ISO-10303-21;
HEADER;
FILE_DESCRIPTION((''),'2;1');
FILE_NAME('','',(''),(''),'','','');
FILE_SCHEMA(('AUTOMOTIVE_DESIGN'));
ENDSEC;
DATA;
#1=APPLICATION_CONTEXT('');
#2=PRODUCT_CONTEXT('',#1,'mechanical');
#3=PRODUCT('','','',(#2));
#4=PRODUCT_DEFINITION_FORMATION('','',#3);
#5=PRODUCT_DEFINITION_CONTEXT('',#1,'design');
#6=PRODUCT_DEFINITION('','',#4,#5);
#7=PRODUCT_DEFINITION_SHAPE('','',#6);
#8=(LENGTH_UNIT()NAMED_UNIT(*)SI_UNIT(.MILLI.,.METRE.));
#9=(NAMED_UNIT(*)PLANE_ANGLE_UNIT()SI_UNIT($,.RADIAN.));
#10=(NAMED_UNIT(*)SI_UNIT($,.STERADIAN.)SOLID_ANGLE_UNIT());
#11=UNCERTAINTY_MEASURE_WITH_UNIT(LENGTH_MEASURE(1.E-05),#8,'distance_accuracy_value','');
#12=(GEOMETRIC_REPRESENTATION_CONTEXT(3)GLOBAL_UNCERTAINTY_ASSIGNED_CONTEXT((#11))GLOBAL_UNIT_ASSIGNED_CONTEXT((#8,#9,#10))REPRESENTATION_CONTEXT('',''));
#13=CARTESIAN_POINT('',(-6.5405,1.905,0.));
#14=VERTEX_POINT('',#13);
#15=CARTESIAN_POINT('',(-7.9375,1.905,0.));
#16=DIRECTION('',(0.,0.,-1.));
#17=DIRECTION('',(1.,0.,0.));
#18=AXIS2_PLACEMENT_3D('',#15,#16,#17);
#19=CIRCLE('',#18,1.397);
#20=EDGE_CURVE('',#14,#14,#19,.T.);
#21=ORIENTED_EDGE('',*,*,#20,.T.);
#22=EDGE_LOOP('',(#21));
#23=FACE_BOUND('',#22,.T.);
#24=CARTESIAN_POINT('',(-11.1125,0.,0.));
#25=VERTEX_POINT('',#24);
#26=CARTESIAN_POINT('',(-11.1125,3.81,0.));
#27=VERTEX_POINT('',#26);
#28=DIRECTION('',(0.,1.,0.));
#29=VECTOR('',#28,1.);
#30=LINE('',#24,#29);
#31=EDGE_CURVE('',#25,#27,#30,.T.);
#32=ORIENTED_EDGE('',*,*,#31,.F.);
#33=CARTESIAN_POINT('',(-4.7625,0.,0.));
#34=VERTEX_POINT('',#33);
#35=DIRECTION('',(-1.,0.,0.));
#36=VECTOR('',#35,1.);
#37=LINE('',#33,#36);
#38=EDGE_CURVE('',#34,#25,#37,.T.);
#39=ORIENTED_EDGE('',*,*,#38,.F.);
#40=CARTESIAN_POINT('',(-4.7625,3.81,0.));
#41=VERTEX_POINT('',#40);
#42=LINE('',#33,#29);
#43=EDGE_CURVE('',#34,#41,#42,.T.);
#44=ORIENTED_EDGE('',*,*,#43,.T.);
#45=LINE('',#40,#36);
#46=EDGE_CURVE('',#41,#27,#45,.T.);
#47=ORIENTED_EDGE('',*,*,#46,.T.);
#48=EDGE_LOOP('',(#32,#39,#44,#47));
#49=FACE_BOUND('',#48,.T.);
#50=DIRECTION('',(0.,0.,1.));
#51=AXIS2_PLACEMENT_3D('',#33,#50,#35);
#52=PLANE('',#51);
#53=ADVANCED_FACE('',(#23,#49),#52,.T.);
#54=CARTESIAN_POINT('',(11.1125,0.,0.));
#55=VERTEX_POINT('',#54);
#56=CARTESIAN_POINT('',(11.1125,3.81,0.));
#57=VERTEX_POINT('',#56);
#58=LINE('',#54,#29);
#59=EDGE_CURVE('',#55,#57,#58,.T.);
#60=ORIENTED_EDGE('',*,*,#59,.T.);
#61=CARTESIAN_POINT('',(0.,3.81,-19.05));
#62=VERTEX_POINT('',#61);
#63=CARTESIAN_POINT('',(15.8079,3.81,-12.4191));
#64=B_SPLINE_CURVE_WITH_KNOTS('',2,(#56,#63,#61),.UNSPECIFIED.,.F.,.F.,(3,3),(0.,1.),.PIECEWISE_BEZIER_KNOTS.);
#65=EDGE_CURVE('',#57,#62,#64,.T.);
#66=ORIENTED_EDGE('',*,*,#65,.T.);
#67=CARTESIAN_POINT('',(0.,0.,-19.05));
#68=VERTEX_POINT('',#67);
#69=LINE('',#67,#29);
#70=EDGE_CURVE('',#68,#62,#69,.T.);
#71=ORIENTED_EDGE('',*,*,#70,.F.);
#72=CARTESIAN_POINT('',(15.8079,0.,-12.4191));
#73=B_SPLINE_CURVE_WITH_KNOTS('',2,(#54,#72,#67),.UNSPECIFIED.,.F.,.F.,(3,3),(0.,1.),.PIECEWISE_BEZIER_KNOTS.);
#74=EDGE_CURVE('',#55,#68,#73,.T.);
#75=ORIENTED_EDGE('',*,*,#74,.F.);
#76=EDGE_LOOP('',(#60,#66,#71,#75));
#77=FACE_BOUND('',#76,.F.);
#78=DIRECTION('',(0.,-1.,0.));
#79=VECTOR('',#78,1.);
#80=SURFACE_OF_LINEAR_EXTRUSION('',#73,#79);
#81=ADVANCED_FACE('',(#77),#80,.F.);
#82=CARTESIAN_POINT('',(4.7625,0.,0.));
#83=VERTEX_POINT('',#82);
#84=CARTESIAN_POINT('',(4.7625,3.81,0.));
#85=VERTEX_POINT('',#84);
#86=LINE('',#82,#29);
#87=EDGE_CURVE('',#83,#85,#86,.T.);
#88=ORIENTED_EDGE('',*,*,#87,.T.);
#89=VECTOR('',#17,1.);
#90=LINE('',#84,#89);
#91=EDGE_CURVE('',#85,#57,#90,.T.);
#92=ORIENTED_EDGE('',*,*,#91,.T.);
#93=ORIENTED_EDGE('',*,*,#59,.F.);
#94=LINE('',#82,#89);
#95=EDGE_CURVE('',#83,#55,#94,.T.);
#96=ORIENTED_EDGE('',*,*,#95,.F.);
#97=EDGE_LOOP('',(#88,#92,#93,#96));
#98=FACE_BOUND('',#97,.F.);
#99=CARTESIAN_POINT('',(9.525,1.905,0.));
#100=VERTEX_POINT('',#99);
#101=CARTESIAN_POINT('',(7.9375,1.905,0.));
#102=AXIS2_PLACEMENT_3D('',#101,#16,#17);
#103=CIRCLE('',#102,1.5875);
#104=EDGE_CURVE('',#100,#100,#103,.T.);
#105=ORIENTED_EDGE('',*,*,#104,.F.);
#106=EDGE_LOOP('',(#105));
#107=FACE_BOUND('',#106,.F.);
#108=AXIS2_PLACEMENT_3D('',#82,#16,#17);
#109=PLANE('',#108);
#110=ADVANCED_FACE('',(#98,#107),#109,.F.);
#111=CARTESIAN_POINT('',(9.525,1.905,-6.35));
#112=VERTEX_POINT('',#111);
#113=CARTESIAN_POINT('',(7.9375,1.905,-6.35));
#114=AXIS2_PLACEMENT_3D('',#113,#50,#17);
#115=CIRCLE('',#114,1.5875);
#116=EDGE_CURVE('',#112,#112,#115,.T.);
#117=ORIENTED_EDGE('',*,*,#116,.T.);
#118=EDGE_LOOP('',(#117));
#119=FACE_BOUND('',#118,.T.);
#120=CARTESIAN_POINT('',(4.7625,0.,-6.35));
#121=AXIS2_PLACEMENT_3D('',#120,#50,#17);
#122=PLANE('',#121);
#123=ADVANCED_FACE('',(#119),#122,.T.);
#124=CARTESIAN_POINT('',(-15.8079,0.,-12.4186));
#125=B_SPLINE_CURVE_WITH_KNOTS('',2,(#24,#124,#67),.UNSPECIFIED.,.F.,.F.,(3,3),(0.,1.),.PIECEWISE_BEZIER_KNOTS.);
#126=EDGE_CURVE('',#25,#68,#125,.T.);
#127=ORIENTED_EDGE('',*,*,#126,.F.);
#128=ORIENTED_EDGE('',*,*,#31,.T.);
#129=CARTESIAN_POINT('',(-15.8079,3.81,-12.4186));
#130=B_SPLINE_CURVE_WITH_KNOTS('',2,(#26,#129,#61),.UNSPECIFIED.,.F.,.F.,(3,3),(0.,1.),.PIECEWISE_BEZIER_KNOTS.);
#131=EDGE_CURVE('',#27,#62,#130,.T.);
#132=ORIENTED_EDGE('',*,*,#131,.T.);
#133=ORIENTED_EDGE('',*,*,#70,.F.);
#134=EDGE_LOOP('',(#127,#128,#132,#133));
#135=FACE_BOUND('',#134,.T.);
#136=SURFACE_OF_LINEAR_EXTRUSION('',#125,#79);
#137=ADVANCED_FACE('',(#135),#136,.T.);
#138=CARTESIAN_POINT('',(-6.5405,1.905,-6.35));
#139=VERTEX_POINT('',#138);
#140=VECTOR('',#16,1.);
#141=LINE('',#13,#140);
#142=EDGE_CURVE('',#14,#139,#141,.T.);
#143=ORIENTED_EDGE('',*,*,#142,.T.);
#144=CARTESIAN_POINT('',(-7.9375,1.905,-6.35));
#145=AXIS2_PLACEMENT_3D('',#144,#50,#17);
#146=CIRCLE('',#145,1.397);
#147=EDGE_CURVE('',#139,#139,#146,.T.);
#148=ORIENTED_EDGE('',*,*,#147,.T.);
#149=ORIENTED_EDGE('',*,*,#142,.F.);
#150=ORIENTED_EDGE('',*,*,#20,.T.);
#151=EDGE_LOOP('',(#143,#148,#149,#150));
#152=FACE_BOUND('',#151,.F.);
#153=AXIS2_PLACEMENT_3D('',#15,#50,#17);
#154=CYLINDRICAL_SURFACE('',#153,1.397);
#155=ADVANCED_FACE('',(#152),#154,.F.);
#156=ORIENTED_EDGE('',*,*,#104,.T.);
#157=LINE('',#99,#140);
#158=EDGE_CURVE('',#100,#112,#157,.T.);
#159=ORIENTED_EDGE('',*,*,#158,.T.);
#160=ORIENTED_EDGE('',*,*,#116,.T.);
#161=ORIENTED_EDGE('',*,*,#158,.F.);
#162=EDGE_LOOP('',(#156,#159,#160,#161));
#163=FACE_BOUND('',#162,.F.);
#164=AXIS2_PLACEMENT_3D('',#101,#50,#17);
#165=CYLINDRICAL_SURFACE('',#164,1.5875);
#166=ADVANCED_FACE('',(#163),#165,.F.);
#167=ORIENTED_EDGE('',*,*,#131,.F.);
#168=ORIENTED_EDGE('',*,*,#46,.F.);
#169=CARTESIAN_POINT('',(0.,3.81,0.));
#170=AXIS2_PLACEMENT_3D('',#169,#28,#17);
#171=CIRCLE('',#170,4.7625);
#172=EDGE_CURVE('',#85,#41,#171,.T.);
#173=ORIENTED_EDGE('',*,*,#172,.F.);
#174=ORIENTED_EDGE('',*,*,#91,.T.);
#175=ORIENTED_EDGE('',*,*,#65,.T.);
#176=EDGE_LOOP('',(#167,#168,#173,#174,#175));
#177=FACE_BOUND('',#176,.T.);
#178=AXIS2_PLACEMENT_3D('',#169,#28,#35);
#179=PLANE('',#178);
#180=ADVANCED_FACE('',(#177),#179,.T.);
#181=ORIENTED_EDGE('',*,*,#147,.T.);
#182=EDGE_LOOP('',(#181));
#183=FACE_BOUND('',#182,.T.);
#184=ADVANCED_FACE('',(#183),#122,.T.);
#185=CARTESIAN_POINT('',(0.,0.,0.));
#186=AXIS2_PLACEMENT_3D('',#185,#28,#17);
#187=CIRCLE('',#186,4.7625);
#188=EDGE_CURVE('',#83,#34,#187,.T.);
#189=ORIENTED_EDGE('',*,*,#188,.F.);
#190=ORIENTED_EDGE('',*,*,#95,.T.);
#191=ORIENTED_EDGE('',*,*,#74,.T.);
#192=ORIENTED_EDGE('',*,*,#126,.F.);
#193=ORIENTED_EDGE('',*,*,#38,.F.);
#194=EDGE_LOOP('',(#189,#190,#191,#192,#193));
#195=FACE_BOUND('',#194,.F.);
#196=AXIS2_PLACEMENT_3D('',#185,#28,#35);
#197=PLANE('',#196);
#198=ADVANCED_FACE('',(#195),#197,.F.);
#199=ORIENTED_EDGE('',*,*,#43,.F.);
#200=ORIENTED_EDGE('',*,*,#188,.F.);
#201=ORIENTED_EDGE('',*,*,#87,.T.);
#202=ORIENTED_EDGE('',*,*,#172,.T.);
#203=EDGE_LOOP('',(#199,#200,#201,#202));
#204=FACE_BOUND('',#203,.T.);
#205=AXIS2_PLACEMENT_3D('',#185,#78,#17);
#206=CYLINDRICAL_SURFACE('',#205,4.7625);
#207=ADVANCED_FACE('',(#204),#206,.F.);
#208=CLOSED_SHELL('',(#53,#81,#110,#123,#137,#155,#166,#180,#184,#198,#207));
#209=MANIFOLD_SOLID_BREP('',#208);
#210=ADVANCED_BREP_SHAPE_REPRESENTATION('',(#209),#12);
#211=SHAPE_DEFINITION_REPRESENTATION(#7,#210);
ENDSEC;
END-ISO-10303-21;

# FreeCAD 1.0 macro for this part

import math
import FreeCAD as App
import Part
import Sketcher
from FreeCAD import Vector
Q = App.Units.Quantity

doc = App.newDocument("Part")
params = doc.addObject("Spreadsheet::Sheet", "Params")
for row, (alias, value) in enumerate([
    ("sketch1_radius", "0.1875 in"),
    ("pad1_length", "0.15 in"),
    ("sketch2_diameter", "0.11 in"),
    ("sketch2_diameter2", "0.125 in"),
    ("pocket1_length", "0.25 in"),
], start=1):
    params.set(f"A{row}", alias)
    params.set(f"B{row}", "=" + value)
    params.setAlias(f"B{row}", alias)

body = doc.addObject("PartDesign::Body", "Body")

# Sketch on XZ plane
sketch1 = doc.addObject("Sketcher::SketchObject", "Sketch")
body.addObject(sketch1)
sketch1.AttachmentSupport = (doc.XZ_Plane, [""])
sketch1.MapMode = "FlatFace"
sketch1.addGeometry([
    Part.ArcOfCircle(Part.Circle(Vector(0, 0, 0), Vector(0, 0, 1), 4.7625), math.radians(180), math.radians(360)),  # 0
    Part.LineSegment(Vector(4.7625, 0, 0), Vector(11.1125, 0, 0)),  # 1
    Part.BSplineCurve([Vector(11.1125, 0, 0), Vector(15.8079, -12.4191, 0), Vector(0, -19.05, 0)], [3, 3], [0, 1], False, 2, [1, 1, 1], False),  # 2
    Part.BSplineCurve([Vector(-11.1125, 0, 0), Vector(-15.8079, -12.4186, 0), Vector(0, -19.05, 0)], [3, 3], [0, 1], False, 2, [1, 1, 1], False),  # 3
    Part.LineSegment(Vector(-11.1125, 0, 0), Vector(-4.7625, 0, 0)),  # 4
], False)
sketch1.addConstraint([
    Sketcher.Constraint("Block", 2),
    Sketcher.Constraint("Block", 3),
    Sketcher.Constraint("Coincident", 0, 2, 1, 1),
    Sketcher.Constraint("Coincident", 1, 2, 2, 1),
    Sketcher.Constraint("Coincident", 3, 1, 4, 1),
    Sketcher.Constraint("Coincident", 4, 2, 0, 1),
    Sketcher.Constraint("Horizontal", 1),
    Sketcher.Constraint("Horizontal", 4),
    Sketcher.Constraint("Coincident", 0, 3, -1, 1),
    Sketcher.Constraint("Radius", 0, Q("0.1875 in")),
])
sketch1.setExpression("Constraints[9]", "Params.sketch1_radius")
pad1 = doc.addObject("PartDesign::Pad", "Pad")
body.addObject(pad1)
pad1.Profile = sketch1
pad1.setExpression("Length", "Params.pad1_length")
pad1.Reversed = True

# Sketch on XY plane
sketch2 = doc.addObject("Sketcher::SketchObject", "Sketch001")
body.addObject(sketch2)
sketch2.AttachmentSupport = (doc.XY_Plane, [""])
sketch2.MapMode = "FlatFace"
sketch2.addGeometry([
    Part.Circle(Vector(7.9, 1.9, 0), Vector(0, 0, 1), 1.6),
    Part.Circle(Vector(-7.9, 1.9, 0), Vector(0, 0, 1), 1.4),
], False)
sketch2.addConstraint([
    Sketcher.Constraint("Symmetric", 0, 3, 1, 3, -2),
    Sketcher.Constraint("Diameter", 1, Q("0.11 in")),
    Sketcher.Constraint("Diameter", 0, Q("0.125 in")),
    Sketcher.Constraint("DistanceX", -1, 1, 0, 3, Q("0.3125 in")),
    Sketcher.Constraint("DistanceY", -1, 1, 0, 3, Q("0.075 in")),
])
sketch2.setExpression("Constraints[1]", "Params.sketch2_diameter")
sketch2.setExpression("Constraints[2]", "Params.sketch2_diameter2")
pocket1 = doc.addObject("PartDesign::Pocket", "Pocket")
body.addObject(pocket1)
pocket1.Profile = sketch2
pocket1.setExpression("Length", "Params.pocket1_length")

doc.recompute()
